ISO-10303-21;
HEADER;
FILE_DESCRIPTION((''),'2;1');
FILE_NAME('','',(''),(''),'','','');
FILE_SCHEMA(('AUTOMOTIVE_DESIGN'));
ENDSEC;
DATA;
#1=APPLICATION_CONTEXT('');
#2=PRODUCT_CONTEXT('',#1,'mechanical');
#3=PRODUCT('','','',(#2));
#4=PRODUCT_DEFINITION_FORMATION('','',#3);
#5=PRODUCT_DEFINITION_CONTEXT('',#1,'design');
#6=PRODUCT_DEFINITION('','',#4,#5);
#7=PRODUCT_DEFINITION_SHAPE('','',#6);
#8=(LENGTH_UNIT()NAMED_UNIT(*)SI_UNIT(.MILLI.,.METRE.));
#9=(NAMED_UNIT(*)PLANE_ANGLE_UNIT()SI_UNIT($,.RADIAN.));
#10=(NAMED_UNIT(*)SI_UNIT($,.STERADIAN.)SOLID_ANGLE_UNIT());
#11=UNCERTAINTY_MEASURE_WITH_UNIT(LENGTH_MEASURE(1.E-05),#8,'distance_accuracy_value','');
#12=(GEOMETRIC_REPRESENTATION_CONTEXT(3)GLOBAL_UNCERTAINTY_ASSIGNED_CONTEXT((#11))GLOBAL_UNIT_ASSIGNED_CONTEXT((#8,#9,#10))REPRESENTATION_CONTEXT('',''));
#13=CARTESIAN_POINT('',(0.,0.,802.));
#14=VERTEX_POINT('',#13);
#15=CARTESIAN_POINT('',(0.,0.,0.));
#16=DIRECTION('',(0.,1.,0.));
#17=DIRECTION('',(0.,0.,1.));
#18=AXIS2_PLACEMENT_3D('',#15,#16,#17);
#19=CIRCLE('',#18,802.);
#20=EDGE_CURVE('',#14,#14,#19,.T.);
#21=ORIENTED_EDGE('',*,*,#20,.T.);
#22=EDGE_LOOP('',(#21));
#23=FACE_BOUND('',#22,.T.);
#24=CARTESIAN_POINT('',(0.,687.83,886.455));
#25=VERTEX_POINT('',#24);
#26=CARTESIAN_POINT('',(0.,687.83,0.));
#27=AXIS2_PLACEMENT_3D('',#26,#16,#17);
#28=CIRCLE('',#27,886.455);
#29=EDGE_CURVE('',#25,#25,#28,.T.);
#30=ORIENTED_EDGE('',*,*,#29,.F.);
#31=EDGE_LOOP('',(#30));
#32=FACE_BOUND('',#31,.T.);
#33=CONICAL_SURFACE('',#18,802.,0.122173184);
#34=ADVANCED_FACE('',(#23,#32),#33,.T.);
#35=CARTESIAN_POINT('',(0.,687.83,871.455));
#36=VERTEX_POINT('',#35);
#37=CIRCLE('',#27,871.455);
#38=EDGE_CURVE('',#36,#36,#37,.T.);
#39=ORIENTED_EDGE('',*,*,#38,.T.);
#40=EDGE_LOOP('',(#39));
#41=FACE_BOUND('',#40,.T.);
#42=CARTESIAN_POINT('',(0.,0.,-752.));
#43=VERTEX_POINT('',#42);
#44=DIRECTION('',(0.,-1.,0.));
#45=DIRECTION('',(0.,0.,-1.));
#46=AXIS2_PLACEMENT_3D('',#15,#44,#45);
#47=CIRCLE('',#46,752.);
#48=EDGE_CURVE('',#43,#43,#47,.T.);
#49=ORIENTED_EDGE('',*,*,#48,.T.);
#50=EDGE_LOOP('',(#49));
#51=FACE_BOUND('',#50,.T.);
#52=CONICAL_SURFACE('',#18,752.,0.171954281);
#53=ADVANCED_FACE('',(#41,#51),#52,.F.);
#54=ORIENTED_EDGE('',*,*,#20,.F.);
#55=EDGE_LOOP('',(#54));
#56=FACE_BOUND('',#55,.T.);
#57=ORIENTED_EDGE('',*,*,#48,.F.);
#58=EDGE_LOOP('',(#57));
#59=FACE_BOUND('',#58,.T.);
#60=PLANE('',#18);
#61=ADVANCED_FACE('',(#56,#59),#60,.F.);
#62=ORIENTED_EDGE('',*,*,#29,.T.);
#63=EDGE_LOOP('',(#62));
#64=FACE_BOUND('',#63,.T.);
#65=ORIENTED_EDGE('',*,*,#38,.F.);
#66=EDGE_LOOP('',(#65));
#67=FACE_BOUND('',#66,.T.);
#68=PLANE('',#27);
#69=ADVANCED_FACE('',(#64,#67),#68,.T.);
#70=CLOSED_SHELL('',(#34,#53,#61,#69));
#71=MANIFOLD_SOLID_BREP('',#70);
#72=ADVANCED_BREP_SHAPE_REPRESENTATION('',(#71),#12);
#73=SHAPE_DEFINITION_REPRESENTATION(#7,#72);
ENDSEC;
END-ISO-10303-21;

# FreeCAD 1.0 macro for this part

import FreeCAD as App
import Part
import Sketcher

V = App.Vector

doc = App.newDocument("Part")
body = doc.addObject("PartDesign::Body", "Body")

# Sketch on XZ plane
sketch1 = body.newObject("Sketcher::SketchObject", "Sketch")
sketch1.AttachmentSupport = (doc.getObject("XZ_Plane"), [""])
sketch1.MapMode = "FlatFace"
sketch1.addGeometry(Part.Circle(V(0, 0, 0), V(0, 0, 1), 802), False)
sketch1.addConstraint([
    Sketcher.Constraint("Coincident", 0, 3, -1, 1),
    Sketcher.Constraint("Diameter", 0, 1604.0),
])

# Sketch on XZ plane
sketch2 = body.newObject("Sketcher::SketchObject", "Sketch001")
sketch2.AttachmentSupport = (doc.getObject("XZ_Plane"), [""])
sketch2.MapMode = "FlatFace"
sketch2.AttachmentOffset = App.Placement(V(0, 0, -687.83), App.Rotation())
sketch2.addGeometry(Part.Circle(V(0, 0, 0), V(0, 0, 1), 886), False)
sketch2.addConstraint([
    Sketcher.Constraint("Coincident", 0, 3, -1, 1),
    Sketcher.Constraint("Diameter", 0, 1772.91),
])

additiveloft = body.newObject("PartDesign::AdditiveLoft", "AdditiveLoft")
additiveloft.Profile = sketch1
additiveloft.Sections = [sketch2]

# Sketch on XZ plane
sketch3 = body.newObject("Sketcher::SketchObject", "Sketch002")
sketch3.AttachmentSupport = (doc.getObject("XZ_Plane"), [""])
sketch3.MapMode = "FlatFace"
sketch3.AttachmentOffset = App.Placement(V(0, 0, -687.83), App.Rotation())
sketch3.addGeometry(Part.Circle(V(0, 0, 0), V(0, 0, 1), 871), False)
sketch3.addConstraint([
    Sketcher.Constraint("Coincident", 0, 3, -1, 1),
    Sketcher.Constraint("Diameter", 0, 1742.91),
])

# Sketch on XZ plane
sketch4 = body.newObject("Sketcher::SketchObject", "Sketch003")
sketch4.AttachmentSupport = (doc.getObject("XZ_Plane"), [""])
sketch4.MapMode = "FlatFace"
sketch4.addGeometry(Part.Circle(V(0, 0, 0), V(0, 0, 1), 752), False)
sketch4.addConstraint([
    Sketcher.Constraint("Coincident", 0, 3, -1, 1),
    Sketcher.Constraint("Diameter", 0, 1504.0),
])

subtractiveloft = body.newObject("PartDesign::SubtractiveLoft", "SubtractiveLoft")
subtractiveloft.Profile = sketch3
subtractiveloft.Sections = [sketch4]

doc.recompute()
